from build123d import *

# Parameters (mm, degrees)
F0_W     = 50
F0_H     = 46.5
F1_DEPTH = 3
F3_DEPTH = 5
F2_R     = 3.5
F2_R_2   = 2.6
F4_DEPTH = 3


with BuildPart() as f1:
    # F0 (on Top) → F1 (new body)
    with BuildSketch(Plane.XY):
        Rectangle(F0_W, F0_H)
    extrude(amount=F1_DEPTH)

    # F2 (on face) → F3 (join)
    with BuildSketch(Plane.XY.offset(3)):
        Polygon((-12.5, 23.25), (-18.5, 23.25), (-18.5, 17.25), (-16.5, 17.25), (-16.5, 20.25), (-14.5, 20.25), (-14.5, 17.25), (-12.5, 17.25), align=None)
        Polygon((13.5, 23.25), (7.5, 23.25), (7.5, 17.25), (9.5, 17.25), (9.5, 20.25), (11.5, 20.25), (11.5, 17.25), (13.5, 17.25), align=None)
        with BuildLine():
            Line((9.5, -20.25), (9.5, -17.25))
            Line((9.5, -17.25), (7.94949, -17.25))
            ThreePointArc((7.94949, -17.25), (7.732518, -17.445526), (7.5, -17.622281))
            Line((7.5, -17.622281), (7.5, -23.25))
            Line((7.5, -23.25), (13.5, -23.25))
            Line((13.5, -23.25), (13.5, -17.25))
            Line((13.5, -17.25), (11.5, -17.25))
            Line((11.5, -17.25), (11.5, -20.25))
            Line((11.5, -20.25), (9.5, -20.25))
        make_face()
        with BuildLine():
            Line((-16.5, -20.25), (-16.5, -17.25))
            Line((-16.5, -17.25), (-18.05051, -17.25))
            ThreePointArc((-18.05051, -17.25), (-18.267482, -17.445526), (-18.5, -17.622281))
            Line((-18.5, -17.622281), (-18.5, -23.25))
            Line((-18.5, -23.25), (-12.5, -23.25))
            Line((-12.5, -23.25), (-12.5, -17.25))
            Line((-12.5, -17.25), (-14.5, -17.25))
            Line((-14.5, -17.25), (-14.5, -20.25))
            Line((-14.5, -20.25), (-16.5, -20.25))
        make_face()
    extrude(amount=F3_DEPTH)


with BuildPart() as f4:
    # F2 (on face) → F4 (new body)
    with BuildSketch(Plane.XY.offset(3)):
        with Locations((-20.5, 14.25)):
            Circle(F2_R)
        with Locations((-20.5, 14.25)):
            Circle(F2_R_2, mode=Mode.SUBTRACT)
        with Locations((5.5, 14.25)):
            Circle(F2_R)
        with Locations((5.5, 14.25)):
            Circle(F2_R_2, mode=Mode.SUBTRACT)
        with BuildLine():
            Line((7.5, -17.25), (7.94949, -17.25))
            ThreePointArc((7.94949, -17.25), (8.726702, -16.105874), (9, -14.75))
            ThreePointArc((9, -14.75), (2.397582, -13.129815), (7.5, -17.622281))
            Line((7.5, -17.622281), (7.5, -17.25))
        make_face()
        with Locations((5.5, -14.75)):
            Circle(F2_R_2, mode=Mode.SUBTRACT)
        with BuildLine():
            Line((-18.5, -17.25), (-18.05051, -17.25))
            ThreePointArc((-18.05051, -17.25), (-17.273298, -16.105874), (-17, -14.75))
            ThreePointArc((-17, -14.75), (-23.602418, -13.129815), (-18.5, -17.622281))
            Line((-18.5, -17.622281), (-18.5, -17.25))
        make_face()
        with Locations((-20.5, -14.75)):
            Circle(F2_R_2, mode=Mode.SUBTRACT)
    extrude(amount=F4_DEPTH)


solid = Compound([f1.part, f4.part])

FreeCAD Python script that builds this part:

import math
import FreeCAD as App
import Part
import Sketcher

V = App.Vector
Q = App.Units.Quantity

doc = App.newDocument("Part")
body = doc.addObject("PartDesign::Body", "Body")

# Sketch on XY plane
sketch1 = body.newObject("Sketcher::SketchObject", "Sketch")
sketch1.AttachmentSupport = (doc.getObject("XY_Plane"), [""])
sketch1.MapMode = "FlatFace"
sketch1.addGeometry([
    Part.LineSegment(V(-25, 23, 0), V(-25, -23, 0)),
    Part.LineSegment(V(-25, -23, 0), V(25, -23, 0)),
    Part.LineSegment(V(25, -23, 0), V(25, 23, 0)),
    Part.LineSegment(V(25, 23, 0), V(-25, 23, 0)),
], False)
sketch1.addConstraint([
    Sketcher.Constraint("Coincident", 0, 2, 1, 1),
    Sketcher.Constraint("Coincident", 1, 2, 2, 1),
    Sketcher.Constraint("Coincident", 2, 2, 3, 1),
    Sketcher.Constraint("Coincident", 3, 2, 0, 1),
    Sketcher.Constraint("Vertical", 0),
    Sketcher.Constraint("Horizontal", 1),
    Sketcher.Constraint("Vertical", 2),
    Sketcher.Constraint("Horizontal", 3),
    Sketcher.Constraint("Symmetric", 0, 2, 2, 2, -1, 1),
    Sketcher.Constraint("DistanceX", 1, 1, 1, 2, Q("50 mm")),
    Sketcher.Constraint("DistanceY", 0, 2, 0, 1, Q("46.5 mm")),
])
pad1 = body.newObject("PartDesign::Pad", "Pad")
pad1.Profile = sketch1
pad1.Length = 3

# Sketch on XY plane
sketch2 = body.newObject("Sketcher::SketchObject", "Sketch001")
sketch2.AttachmentSupport = (doc.getObject("XY_Plane"), [""])
sketch2.MapMode = "FlatFace"
sketch2.AttachmentOffset = App.Placement(V(0, 0, 3), App.Rotation())
sketch2.addGeometry([
    Part.LineSegment(V(-12.5, 23.2, 0), V(-18.5, 23.2, 0)),  # 0
    Part.LineSegment(V(-18.5, 23.2, 0), V(-18.5, 17.2, 0)),  # 1
    Part.LineSegment(V(-18.5, 17.2, 0), V(-16.5, 17.2, 0)),  # 2
    Part.LineSegment(V(-16.5, 17.2, 0), V(-16.5, 20.2, 0)),  # 3
    Part.LineSegment(V(-16.5, 20.2, 0), V(-14.5, 20.2, 0)),  # 4
    Part.LineSegment(V(-14.5, 20.2, 0), V(-14.5, 17.2, 0)),  # 5
    Part.LineSegment(V(-14.5, 17.2, 0), V(-12.5, 17.2, 0)),  # 6
    Part.LineSegment(V(-12.5, 17.2, 0), V(-12.5, 23.2, 0)),  # 7
    Part.LineSegment(V(13.5, 23.2, 0), V(7.5, 23.2, 0)),  # 8
    Part.LineSegment(V(7.5, 23.2, 0), V(7.5, 17.2, 0)),  # 9
    Part.LineSegment(V(7.5, 17.2, 0), V(9.5, 17.2, 0)),  # 10
    Part.LineSegment(V(9.5, 17.2, 0), V(9.5, 20.2, 0)),  # 11
    Part.LineSegment(V(9.5, 20.2, 0), V(11.5, 20.2, 0)),  # 12
    Part.LineSegment(V(11.5, 20.2, 0), V(11.5, 17.2, 0)),  # 13
    Part.LineSegment(V(11.5, 17.2, 0), V(13.5, 17.2, 0)),  # 14
    Part.LineSegment(V(13.5, 17.2, 0), V(13.5, 23.2, 0)),  # 15
    Part.LineSegment(V(9.5, -20.2, 0), V(9.5, -17.2, 0)),  # 16
    Part.LineSegment(V(9.5, -17.2, 0), V(7.9, -17.2, 0)),  # 17
    Part.ArcOfCircle(Part.Circle(V(5.5, -14.7, 0), V(0, 0, 1), 3.5), math.radians(-55.15), math.radians(-45.58)),  # 18
    Part.LineSegment(V(7.5, -17.6, 0), V(7.5, -23.2, 0)),  # 19
    Part.LineSegment(V(7.5, -23.2, 0), V(13.5, -23.2, 0)),  # 20
    Part.LineSegment(V(13.5, -23.2, 0), V(13.5, -17.2, 0)),  # 21
    Part.LineSegment(V(13.5, -17.2, 0), V(11.5, -17.2, 0)),  # 22
    Part.LineSegment(V(11.5, -17.2, 0), V(11.5, -20.2, 0)),  # 23
    Part.LineSegment(V(11.5, -20.2, 0), V(9.5, -20.2, 0)),  # 24
    Part.LineSegment(V(-16.5, -20.2, 0), V(-16.5, -17.2, 0)),  # 25
    Part.LineSegment(V(-16.5, -17.2, 0), V(-18.1, -17.2, 0)),  # 26
    Part.ArcOfCircle(Part.Circle(V(-20.5, -14.7, 0), V(0, 0, 1), 3.5), math.radians(-55.15), math.radians(-45.58)),  # 27
    Part.LineSegment(V(-18.5, -17.6, 0), V(-18.5, -23.2, 0)),  # 28
    Part.LineSegment(V(-18.5, -23.2, 0), V(-12.5, -23.2, 0)),  # 29
    Part.LineSegment(V(-12.5, -23.2, 0), V(-12.5, -17.2, 0)),  # 30
    Part.LineSegment(V(-12.5, -17.2, 0), V(-14.5, -17.2, 0)),  # 31
    Part.LineSegment(V(-14.5, -17.2, 0), V(-14.5, -20.2, 0)),  # 32
    Part.LineSegment(V(-14.5, -20.2, 0), V(-16.5, -20.2, 0)),  # 33
], False)
sketch2.addConstraint([
    Sketcher.Constraint("Coincident", 0, 2, 1, 1),
    Sketcher.Constraint("Coincident", 1, 2, 2, 1),
    Sketcher.Constraint("Coincident", 2, 2, 3, 1),
    Sketcher.Constraint("Coincident", 3, 2, 4, 1),
    Sketcher.Constraint("Coincident", 4, 2, 5, 1),
    Sketcher.Constraint("Coincident", 5, 2, 6, 1),
    Sketcher.Constraint("Coincident", 6, 2, 7, 1),
    Sketcher.Constraint("Coincident", 7, 2, 0, 1),
    Sketcher.Constraint("Coincident", 8, 2, 9, 1),
    Sketcher.Constraint("Coincident", 9, 2, 10, 1),
    Sketcher.Constraint("Coincident", 10, 2, 11, 1),
    Sketcher.Constraint("Coincident", 11, 2, 12, 1),
    Sketcher.Constraint("Coincident", 12, 2, 13, 1),
    Sketcher.Constraint("Coincident", 13, 2, 14, 1),
    Sketcher.Constraint("Coincident", 14, 2, 15, 1),
    Sketcher.Constraint("Coincident", 15, 2, 8, 1),
    Sketcher.Constraint("Coincident", 16, 2, 17, 1),
    Sketcher.Constraint("Coincident", 17, 2, 18, 2),
    Sketcher.Constraint("Coincident", 18, 1, 19, 1),
    Sketcher.Constraint("Coincident", 19, 2, 20, 1),
    Sketcher.Constraint("Coincident", 20, 2, 21, 1),
    Sketcher.Constraint("Coincident", 21, 2, 22, 1),
    Sketcher.Constraint("Coincident", 22, 2, 23, 1),
    Sketcher.Constraint("Coincident", 23, 2, 24, 1),
    Sketcher.Constraint("Coincident", 24, 2, 16, 1),
    Sketcher.Constraint("Coincident", 25, 2, 26, 1),
    Sketcher.Constraint("Coincident", 26, 2, 27, 2),
    Sketcher.Constraint("Coincident", 27, 1, 28, 1),
    Sketcher.Constraint("Coincident", 28, 2, 29, 1),
    Sketcher.Constraint("Coincident", 29, 2, 30, 1),
    Sketcher.Constraint("Coincident", 30, 2, 31, 1),
    Sketcher.Constraint("Coincident", 31, 2, 32, 1),
    Sketcher.Constraint("Coincident", 32, 2, 33, 1),
    Sketcher.Constraint("Coincident", 33, 2, 25, 1),
    Sketcher.Constraint("Horizontal", 0),
    Sketcher.Constraint("Vertical", 1),
    Sketcher.Constraint("Horizontal", 2),
    Sketcher.Constraint("Vertical", 3),
    Sketcher.Constraint("Horizontal", 4),
    Sketcher.Constraint("Vertical", 5),
    Sketcher.Constraint("Horizontal", 6),
    Sketcher.Constraint("Vertical", 7),
    Sketcher.Constraint("Horizontal", 8),
    Sketcher.Constraint("Vertical", 9),
    Sketcher.Constraint("Horizontal", 10),
    Sketcher.Constraint("Vertical", 11),
    Sketcher.Constraint("Horizontal", 12),
    Sketcher.Constraint("Vertical", 13),
    Sketcher.Constraint("Horizontal", 14),
    Sketcher.Constraint("Vertical", 15),
    Sketcher.Constraint("Vertical", 16),
    Sketcher.Constraint("Horizontal", 17),
    Sketcher.Constraint("Vertical", 19),
    Sketcher.Constraint("Horizontal", 20),
    Sketcher.Constraint("Vertical", 21),
    Sketcher.Constraint("Horizontal", 22),
    Sketcher.Constraint("Vertical", 23),
    Sketcher.Constraint("Horizontal", 24),
    Sketcher.Constraint("Vertical", 25),
    Sketcher.Constraint("Horizontal", 26),
    Sketcher.Constraint("Vertical", 28),
    Sketcher.Constraint("Horizontal", 29),
    Sketcher.Constraint("Vertical", 30),
    Sketcher.Constraint("Horizontal", 31),
    Sketcher.Constraint("Vertical", 32),
    Sketcher.Constraint("Horizontal", 33),
    Sketcher.Constraint("Equal", 18, 27),
    Sketcher.Constraint("Symmetric", 10, 2, 16, 2, -1),
    Sketcher.Constraint("Symmetric", 8, 2, 19, 2, -1),
    Sketcher.Constraint("Symmetric", 14, 2, 21, 2, -1),
    Sketcher.Constraint("Symmetric", 12, 2, 23, 2, -1),
    Sketcher.Constraint("Symmetric", 2, 2, 25, 2, -1),
    Sketcher.Constraint("Symmetric", 0, 2, 28, 2, -1),
    Sketcher.Constraint("Symmetric", 6, 2, 30, 2, -1),
    Sketcher.Constraint("Symmetric", 4, 2, 32, 2, -1),
    Sketcher.Constraint("Horizontal", 18, 3, 27, 3),
    Sketcher.Constraint("Horizontal", 2, 2, 5, 2),
    Sketcher.Constraint("Horizontal", 7, 2, 8, 2),
    Sketcher.Constraint("Horizontal", 6, 2, 9, 2),
    Sketcher.Constraint("Horizontal", 4, 2, 11, 2),
    Sketcher.Constraint("Horizontal", 10, 2, 13, 2),
    Sketcher.Constraint("Horizontal", 18, 1, 27, 1),
    Sketcher.Constraint("Equal", 2, 4),
    Sketcher.Constraint("Equal", 4, 6),
    Sketcher.Constraint("Equal", 0, 8),
    Sketcher.Constraint("Equal", 6, 10),
    Sketcher.Constraint("Equal", 10, 12),
    Sketcher.Constraint("Equal", 29, 1),
    Sketcher.Constraint("DistanceX", 0, 2, 0, 1, Q("6 mm")),
    Sketcher.Constraint("DistanceY", 3, 1, 3, 2, Q("3 mm")),
    Sketcher.Constraint("DistanceX", 27, 3, 18, 3, Q("26 mm")),
    Sketcher.Constraint("DistanceX", 0, 2, -1, 1, Q("18.5 mm")),
    Sketcher.Constraint("DistanceY", 16, 2, 10, 2, Q("34.5 mm")),
    Sketcher.Constraint("Radius", 18, Q("3.500109 mm")),
    Sketcher.Constraint("DistanceX", 17, 2, 17, 1, Q("1.55051 mm")),
    Sketcher.Constraint("DistanceY", 19, 2, 19, 1, Q("5.627719 mm")),
])
pad2 = body.newObject("PartDesign::Pad", "Pad001")
pad2.Profile = sketch2
pad2.Length = 5
body2 = doc.addObject("PartDesign::Body", "Body001")
body2.AllowCompound = True

# Sketch on XY plane
sketch3 = body2.newObject("Sketcher::SketchObject", "Sketch002")
sketch3.AttachmentSupport = (doc.getObject("XY_Plane001"), [""])
sketch3.MapMode = "FlatFace"
sketch3.AttachmentOffset = App.Placement(V(0, 0, 3), App.Rotation())
sketch3.addGeometry([
    Part.Circle(V(-20.5, 14.25, 0), V(0, 0, 1), 3.5),  # 0
    Part.Circle(V(-20.5, 14.25, 0), V(0, 0, 1), 2.6),  # 1
    Part.Circle(V(5.5, 14.25, 0), V(0, 0, 1), 3.5),  # 2
    Part.Circle(V(5.5, 14.25, 0), V(0, 0, 1), 2.6),  # 3
    Part.LineSegment(V(7.5, -17.25, 0), V(7.95, -17.25, 0)),  # 4
    Part.ArcOfCircle(Part.Circle(V(5.5, -14.75, 0), V(0, 0, 1), 3.5), math.radians(-46), math.radians(0)),  # 5
    Part.ArcOfCircle(Part.Circle(V(5.5, -14.75, 0), V(0, 0, 1), 3.5), math.radians(0), math.radians(305)),  # 6
    Part.LineSegment(V(7.5, -17.62, 0), V(7.5, -17.25, 0)),  # 7
    Part.Circle(V(5.5, -14.75, 0), V(0, 0, 1), 2.6),  # 8
    Part.LineSegment(V(-18.5, -17.25, 0), V(-18.05, -17.25, 0)),  # 9
    Part.ArcOfCircle(Part.Circle(V(-20.5, -14.75, 0), V(0, 0, 1), 3.5), math.radians(-46), math.radians(0)),  # 10
    Part.ArcOfCircle(Part.Circle(V(-20.5, -14.75, 0), V(0, 0, 1), 3.5), math.radians(0), math.radians(305)),  # 11
    Part.LineSegment(V(-18.5, -17.62, 0), V(-18.5, -17.25, 0)),  # 12
    Part.Circle(V(-20.5, -14.75, 0), V(0, 0, 1), 2.6),  # 13
], False)
sketch3.addConstraint([
    Sketcher.Constraint("Coincident", 4, 2, 5, 1),
    Sketcher.Constraint("Tangent", 5, 2, 6, 1),
    Sketcher.Constraint("Coincident", 6, 2, 7, 1),
    Sketcher.Constraint("Coincident", 7, 2, 4, 1),
    Sketcher.Constraint("Coincident", 9, 2, 10, 1),
    Sketcher.Constraint("Tangent", 10, 2, 11, 1),
    Sketcher.Constraint("Coincident", 11, 2, 12, 1),
    Sketcher.Constraint("Coincident", 12, 2, 9, 1),
    Sketcher.Constraint("Horizontal", 4),
    Sketcher.Constraint("Vertical", 7),
    Sketcher.Constraint("Horizontal", 9),
    Sketcher.Constraint("Vertical", 12),
    Sketcher.Constraint("Coincident", 1, 3, 0, 3),
    Sketcher.Constraint("Coincident", 3, 3, 2, 3),
    Sketcher.Constraint("Coincident", 8, 3, 5, 3),
    Sketcher.Constraint("Coincident", 13, 3, 10, 3),
    Sketcher.Constraint("Equal", 0, 2),
    Sketcher.Constraint("Equal", 1, 3),
    Sketcher.Constraint("Equal", 2, 5),
    Sketcher.Constraint("Equal", 5, 6),
    Sketcher.Constraint("Equal", 3, 8),
    Sketcher.Constraint("Equal", 6, 10),
    Sketcher.Constraint("Equal", 10, 11),
    Sketcher.Constraint("Equal", 8, 13),
    Sketcher.Constraint("Horizontal", 1, 3, 2, 3),
    Sketcher.Constraint("Horizontal", 8, 3, 10, 3),
    Sketcher.Constraint("Horizontal", 13, 3, 5, 2),
    Sketcher.Constraint("Horizontal", 7, 2, 9, 2),
    Sketcher.Constraint("Horizontal", 5, 2, 10, 2),
    Sketcher.Constraint("Horizontal", 6, 2, 11, 2),
    Sketcher.Constraint("Vertical", 3, 3, 5, 3),
    Sketcher.Constraint("Vertical", 1, 3, 10, 3),
    Sketcher.Constraint("Diameter", 0, Q("7 mm")),
    Sketcher.Constraint("Diameter", 1, Q("5.2 mm")),
    Sketcher.Constraint("DistanceX", -1, 1, 5, 2, Q("9 mm")),
    Sketcher.Constraint("DistanceX", 10, 2, -1, 1, Q("17 mm")),
    Sketcher.Constraint("DistanceY", 5, 3, 2, 3, Q("29 mm")),
    Sketcher.Constraint("DistanceX", 6, 3, 6, 2, Q("2 mm")),
    Sketcher.Constraint("DistanceY", 4, 2, 6, 3, Q("2.5 mm")),
    Sketcher.Constraint("DistanceY", -1, 1, 0, 3, Q("14.25 mm")),
])
pad3 = body2.newObject("PartDesign::Pad", "Pad002")
pad3.Profile = sketch3
pad3.Length = 3

doc.recompute()
